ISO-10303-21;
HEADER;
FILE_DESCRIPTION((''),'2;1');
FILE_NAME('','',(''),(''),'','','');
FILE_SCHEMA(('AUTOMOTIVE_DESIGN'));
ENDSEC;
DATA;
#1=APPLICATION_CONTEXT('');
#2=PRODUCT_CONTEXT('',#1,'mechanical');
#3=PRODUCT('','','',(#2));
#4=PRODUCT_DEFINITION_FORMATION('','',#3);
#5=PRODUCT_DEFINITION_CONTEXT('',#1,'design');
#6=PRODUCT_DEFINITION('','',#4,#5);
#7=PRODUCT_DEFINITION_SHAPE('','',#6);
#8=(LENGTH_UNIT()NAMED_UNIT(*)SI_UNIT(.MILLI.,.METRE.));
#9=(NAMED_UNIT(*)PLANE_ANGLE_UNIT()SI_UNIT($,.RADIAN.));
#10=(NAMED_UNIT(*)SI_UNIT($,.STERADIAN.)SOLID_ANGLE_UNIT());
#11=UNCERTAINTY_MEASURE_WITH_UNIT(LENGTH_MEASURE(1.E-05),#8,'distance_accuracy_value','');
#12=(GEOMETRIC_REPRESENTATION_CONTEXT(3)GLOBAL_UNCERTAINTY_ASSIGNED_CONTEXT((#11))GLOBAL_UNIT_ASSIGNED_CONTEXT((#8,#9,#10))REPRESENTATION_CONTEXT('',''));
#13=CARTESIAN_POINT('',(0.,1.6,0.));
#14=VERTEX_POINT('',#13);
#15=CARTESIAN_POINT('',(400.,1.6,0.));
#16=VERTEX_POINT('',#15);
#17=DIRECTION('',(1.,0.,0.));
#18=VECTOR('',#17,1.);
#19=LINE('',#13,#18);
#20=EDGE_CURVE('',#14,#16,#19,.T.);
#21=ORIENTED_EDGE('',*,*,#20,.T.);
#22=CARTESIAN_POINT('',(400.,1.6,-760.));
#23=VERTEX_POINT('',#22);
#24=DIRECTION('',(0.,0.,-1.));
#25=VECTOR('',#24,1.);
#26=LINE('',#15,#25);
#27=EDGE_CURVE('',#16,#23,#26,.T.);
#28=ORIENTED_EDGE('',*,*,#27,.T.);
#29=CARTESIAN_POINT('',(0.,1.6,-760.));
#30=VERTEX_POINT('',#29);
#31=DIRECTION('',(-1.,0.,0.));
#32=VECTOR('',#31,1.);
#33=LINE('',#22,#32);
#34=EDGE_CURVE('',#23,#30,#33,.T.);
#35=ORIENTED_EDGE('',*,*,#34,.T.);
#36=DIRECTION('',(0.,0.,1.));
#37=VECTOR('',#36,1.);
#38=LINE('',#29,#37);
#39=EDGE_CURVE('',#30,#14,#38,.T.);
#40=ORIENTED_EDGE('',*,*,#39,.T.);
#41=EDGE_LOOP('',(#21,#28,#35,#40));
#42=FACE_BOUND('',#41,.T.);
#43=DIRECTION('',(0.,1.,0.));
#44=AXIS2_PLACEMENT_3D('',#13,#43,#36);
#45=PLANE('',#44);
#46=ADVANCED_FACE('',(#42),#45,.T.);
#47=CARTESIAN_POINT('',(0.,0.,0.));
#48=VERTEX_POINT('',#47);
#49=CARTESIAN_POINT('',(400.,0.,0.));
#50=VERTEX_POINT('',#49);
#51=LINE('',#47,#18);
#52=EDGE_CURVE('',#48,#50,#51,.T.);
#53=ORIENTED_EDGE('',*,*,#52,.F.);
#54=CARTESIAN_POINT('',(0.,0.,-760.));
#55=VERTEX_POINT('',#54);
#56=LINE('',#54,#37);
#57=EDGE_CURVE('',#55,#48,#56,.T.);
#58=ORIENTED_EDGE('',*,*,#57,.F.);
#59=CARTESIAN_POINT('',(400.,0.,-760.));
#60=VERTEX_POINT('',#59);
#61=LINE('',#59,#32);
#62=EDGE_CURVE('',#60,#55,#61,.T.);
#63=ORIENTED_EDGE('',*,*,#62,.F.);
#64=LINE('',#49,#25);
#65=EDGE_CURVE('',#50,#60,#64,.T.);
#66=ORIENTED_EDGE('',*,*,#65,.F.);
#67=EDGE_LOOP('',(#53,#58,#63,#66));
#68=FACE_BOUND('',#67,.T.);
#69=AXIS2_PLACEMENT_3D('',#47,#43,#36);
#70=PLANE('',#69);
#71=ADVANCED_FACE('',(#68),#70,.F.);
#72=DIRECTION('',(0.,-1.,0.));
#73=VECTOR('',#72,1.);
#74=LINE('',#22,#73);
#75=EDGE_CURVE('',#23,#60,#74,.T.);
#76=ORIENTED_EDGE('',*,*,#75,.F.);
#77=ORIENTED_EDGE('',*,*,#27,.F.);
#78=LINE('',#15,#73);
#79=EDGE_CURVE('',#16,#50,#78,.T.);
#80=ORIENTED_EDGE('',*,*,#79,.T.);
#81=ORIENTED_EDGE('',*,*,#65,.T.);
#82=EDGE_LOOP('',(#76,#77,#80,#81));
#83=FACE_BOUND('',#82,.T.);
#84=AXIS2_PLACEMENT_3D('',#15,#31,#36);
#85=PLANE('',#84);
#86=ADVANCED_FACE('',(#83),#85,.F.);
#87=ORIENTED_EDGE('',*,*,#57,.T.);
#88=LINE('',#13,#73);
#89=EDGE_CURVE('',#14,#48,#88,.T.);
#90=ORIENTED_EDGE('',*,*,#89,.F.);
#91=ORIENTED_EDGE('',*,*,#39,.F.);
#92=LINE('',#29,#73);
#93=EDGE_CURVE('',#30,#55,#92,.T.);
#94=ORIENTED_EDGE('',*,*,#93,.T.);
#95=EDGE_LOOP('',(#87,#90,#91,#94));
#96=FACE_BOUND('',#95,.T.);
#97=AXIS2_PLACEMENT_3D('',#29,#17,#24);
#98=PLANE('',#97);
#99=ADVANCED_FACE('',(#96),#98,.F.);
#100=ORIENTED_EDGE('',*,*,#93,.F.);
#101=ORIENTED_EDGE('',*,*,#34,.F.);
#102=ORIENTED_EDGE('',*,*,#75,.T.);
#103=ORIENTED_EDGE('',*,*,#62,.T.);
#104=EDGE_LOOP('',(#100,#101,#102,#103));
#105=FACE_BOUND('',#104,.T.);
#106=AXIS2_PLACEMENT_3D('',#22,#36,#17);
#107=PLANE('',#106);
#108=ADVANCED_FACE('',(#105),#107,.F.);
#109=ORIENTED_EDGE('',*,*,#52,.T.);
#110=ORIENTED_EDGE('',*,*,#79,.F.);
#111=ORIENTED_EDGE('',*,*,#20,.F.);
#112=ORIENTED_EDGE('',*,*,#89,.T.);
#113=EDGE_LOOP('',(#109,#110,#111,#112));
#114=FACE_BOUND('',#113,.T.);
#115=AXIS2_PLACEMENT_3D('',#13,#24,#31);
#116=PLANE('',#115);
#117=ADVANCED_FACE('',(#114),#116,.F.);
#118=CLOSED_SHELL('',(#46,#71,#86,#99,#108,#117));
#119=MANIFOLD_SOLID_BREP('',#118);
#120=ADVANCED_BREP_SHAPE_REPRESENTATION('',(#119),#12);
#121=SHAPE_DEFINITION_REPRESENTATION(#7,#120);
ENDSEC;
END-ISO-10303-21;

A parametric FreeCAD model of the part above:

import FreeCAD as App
import Part
import Sketcher

V = App.Vector
Q = App.Units.Quantity

doc = App.newDocument("Part")
body = doc.addObject("PartDesign::Body", "Body")

# Sketch on XZ plane
sketch1 = doc.addObject("Sketcher::SketchObject", "Sketch")
body.addObject(sketch1)
sketch1.AttachmentSupport = (doc.XZ_Plane, [""])
sketch1.MapMode = "FlatFace"
sketch1.addGeometry([
    Part.LineSegment(V(0, -760, 0), V(0, 0, 0)),
    Part.LineSegment(V(0, 0, 0), V(400, 0, 0)),
    Part.LineSegment(V(400, 0, 0), V(400, -760, 0)),
    Part.LineSegment(V(400, -760, 0), V(0, -760, 0)),
], False)
sketch1.addConstraint([
    Sketcher.Constraint("Coincident", 0, 2, 1, 1),
    Sketcher.Constraint("Coincident", 1, 2, 2, 1),
    Sketcher.Constraint("Coincident", 2, 2, 3, 1),
    Sketcher.Constraint("Coincident", 3, 2, 0, 1),
    Sketcher.Constraint("Vertical", 0),
    Sketcher.Constraint("Horizontal", 1),
    Sketcher.Constraint("Vertical", 2),
    Sketcher.Constraint("Horizontal", 3),
    Sketcher.Constraint("Coincident", 0, 2, -1, 1),
    Sketcher.Constraint("DistanceX", 1, 1, 1, 2, Q("400 mm")),
    Sketcher.Constraint("DistanceY", 0, 1, 0, 2, Q("760 mm")),
])
pad1 = doc.addObject("PartDesign::Pad", "Pad")
body.addObject(pad1)
pad1.Profile = sketch1
pad1.Length = 1.6
pad1.Reversed = True

doc.recompute()
